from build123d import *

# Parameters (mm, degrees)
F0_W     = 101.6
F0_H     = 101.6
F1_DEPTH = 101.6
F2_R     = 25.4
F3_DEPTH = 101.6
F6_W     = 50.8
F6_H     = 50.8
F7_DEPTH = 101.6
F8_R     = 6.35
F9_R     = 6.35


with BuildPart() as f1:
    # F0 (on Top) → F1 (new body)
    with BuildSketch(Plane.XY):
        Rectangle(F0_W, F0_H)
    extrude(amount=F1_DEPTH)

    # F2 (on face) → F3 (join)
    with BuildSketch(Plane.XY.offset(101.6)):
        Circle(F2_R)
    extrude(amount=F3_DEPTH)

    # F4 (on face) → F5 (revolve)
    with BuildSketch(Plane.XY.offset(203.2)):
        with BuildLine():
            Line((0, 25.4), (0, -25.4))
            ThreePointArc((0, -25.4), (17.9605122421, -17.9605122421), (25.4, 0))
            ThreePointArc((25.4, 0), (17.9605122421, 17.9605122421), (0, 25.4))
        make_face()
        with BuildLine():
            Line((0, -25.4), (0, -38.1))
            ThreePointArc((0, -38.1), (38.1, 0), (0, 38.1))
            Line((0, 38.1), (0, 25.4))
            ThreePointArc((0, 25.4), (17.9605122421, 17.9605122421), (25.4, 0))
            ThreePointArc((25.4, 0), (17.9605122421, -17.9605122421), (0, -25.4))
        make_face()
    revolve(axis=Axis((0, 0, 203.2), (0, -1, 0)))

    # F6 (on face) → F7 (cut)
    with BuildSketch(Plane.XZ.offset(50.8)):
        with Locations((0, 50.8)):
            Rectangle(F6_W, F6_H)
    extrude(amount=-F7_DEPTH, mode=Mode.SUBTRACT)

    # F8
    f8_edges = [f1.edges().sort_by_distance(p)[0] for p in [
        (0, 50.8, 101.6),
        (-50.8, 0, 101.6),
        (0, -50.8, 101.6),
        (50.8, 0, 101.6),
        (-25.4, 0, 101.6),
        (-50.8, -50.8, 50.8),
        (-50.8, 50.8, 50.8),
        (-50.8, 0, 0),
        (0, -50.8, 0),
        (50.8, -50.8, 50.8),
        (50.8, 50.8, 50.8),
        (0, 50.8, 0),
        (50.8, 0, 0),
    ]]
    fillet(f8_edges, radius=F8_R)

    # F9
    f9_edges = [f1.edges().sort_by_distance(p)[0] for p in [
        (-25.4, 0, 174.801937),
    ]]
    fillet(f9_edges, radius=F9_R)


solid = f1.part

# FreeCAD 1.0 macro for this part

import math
import FreeCAD as App
import Part
import Sketcher
Q = App.Units.Quantity


def edges_at(feature, points):
    """Names of the edges that pass closest to the given points."""
    edges = feature.Shape.Edges
    near = lambda p: min(range(len(edges)), key=lambda i: edges[i].distToShape(Part.Vertex(*p))[0])
    return sorted({f"Edge{near(p) + 1}" for p in points})


def add_polygon(sketch, points):
    """Adds a closed chain of lines whose ends are joined by coincident constraints."""
    first, n = sketch.GeometryCount, len(points)
    for a, b in zip(points, points[1:] + points[:1]):
        sketch.addGeometry(Part.LineSegment(App.Vector(*a, 0), App.Vector(*b, 0)), False)
    for i in range(n):
        sketch.addConstraint(Sketcher.Constraint("Coincident", first + i, 2, first + (i + 1) % n, 1))

doc = App.newDocument("Part")
body = doc.addObject("PartDesign::Body", "Body")

# Sketch on XY plane
sketch1 = body.newObject("Sketcher::SketchObject", "Sketch")
sketch1.AttachmentSupport = (doc.getObject("XY_Plane"), [""])
sketch1.MapMode = "FlatFace"
add_polygon(sketch1, [(-50.8, 50.8), (-50.8, -50.8), (50.8, -50.8), (50.8, 50.8)])  # lines 0-3
sketch1.addConstraint(Sketcher.Constraint("Vertical", 0))
sketch1.addConstraint(Sketcher.Constraint("Horizontal", 1))
sketch1.addConstraint(Sketcher.Constraint("Vertical", 2))
sketch1.addConstraint(Sketcher.Constraint("Horizontal", 3))
sketch1.addConstraint(Sketcher.Constraint("Symmetric", 0, 2, 2, 2, -1, 1))
sketch1.addConstraint(Sketcher.Constraint("Equal", 3, 0))
sketch1.addConstraint(Sketcher.Constraint("DistanceX", 1, 1, 1, 2, Q("4 in")))
pad1 = body.newObject("PartDesign::Pad", "Pad")
pad1.Profile = sketch1
pad1.Length = Q("4 in")

# Sketch on XY plane
sketch2 = body.newObject("Sketcher::SketchObject", "Sketch001")
sketch2.AttachmentSupport = (doc.getObject("XY_Plane"), [""])
sketch2.MapMode = "FlatFace"
sketch2.AttachmentOffset = App.Placement(App.Vector(0, 0, 4 * 25.4), App.Rotation())
sketch2.addGeometry(Part.Circle(App.Vector(0, 0, 0), App.Vector(0, 0, 1), 25.4), False)
sketch2.addConstraint(Sketcher.Constraint("Coincident", 0, 3, -1, 1))
sketch2.addConstraint(Sketcher.Constraint("Diameter", 0, Q("2 in")))
pad2 = body.newObject("PartDesign::Pad", "Pad001")
pad2.Profile = sketch2
pad2.Length = Q("4 in")

# Sketch on XY plane
sketch3 = body.newObject("Sketcher::SketchObject", "Sketch002")
sketch3.AttachmentSupport = (doc.getObject("XY_Plane"), [""])
sketch3.MapMode = "FlatFace"
sketch3.AttachmentOffset = App.Placement(App.Vector(0, 0, 8 * 25.4), App.Rotation())
sketch3.addGeometry(Part.ArcOfCircle(Part.Circle(App.Vector(0, 0, 0), App.Vector(0, 0, 1), 38.1), math.radians(-90), math.radians(90)), False)
sketch3.addGeometry(Part.LineSegment(App.Vector(0, 38.1, 0), App.Vector(0, -38.1, 0)), False)
sketch3.addConstraint(Sketcher.Constraint("Coincident", 0, 1, 1, 2))
sketch3.addConstraint(Sketcher.Constraint("Coincident", 1, 1, 0, 2))
sketch3.addConstraint(Sketcher.Constraint("Vertical", 1))
sketch3.addConstraint(Sketcher.Constraint("Coincident", 0, 3, -1, 1))
sketch3.addConstraint(Sketcher.Constraint("PointOnObject", 0, 1, -2))
sketch3.addConstraint(Sketcher.Constraint("Radius", 0, Q("1.5 in")))
revolution = body.newObject("PartDesign::Revolution", "Revolution")
revolution.Profile = sketch3
revolution.ReferenceAxis = (sketch3, ["V_Axis"])
revolution.Angle = 360

# Sketch on XZ plane
sketch4 = body.newObject("Sketcher::SketchObject", "Sketch003")
sketch4.AttachmentSupport = (doc.getObject("XZ_Plane"), [""])
sketch4.MapMode = "FlatFace"
sketch4.AttachmentOffset = App.Placement(App.Vector(0, 0, 2 * 25.4), App.Rotation())
add_polygon(sketch4, [(-25.4, 76.2), (-25.4, 25.4), (25.4, 25.4), (25.4, 76.2)])  # lines 0-3
sketch4.addConstraint(Sketcher.Constraint("Vertical", 0))
sketch4.addConstraint(Sketcher.Constraint("Horizontal", 1))
sketch4.addConstraint(Sketcher.Constraint("Vertical", 2))
sketch4.addConstraint(Sketcher.Constraint("Horizontal", 3))
sketch4.addConstraint(Sketcher.Constraint("Equal", 3, 0))
sketch4.addConstraint(Sketcher.Constraint("DistanceX", 1, 1, 1, 2, Q("2 in")))
sketch4.addConstraint(Sketcher.Constraint("DistanceX", 0, 2, -1, 1, Q("1 in")))
sketch4.addConstraint(Sketcher.Constraint("DistanceY", -1, 1, 0, 2, Q("1 in")))
pocket1 = body.newObject("PartDesign::Pocket", "Pocket")
pocket1.Profile = sketch4
pocket1.Length = Q("4 in")
doc.recompute()

fillet = body.newObject("PartDesign::Fillet", "Fillet")
fillet.Base = (pocket1, edges_at(pocket1, [
    (0, 50.8, 101.6),
    (-50.8, 0, 101.6),
    (0, -50.8, 101.6),
    (50.8, 0, 101.6),
    (-25.4, 0, 101.6),
    (-50.8, -50.8, 50.8),
    (-50.8, 50.8, 50.8),
    (-50.8, 0, 0),
    (0, -50.8, 0),
    (50.8, -50.8, 50.8),
    (50.8, 50.8, 50.8),
    (0, 50.8, 0),
    (50.8, 0, 0),
]))
fillet.Radius = Q("0.25 in")
doc.recompute()

fillet2 = body.newObject("PartDesign::Fillet", "Fillet001")
fillet2.Base = (fillet, edges_at(fillet, [(-25.4, 0, 174.802)]))
fillet2.Radius = Q("0.25 in")

doc.recompute()
